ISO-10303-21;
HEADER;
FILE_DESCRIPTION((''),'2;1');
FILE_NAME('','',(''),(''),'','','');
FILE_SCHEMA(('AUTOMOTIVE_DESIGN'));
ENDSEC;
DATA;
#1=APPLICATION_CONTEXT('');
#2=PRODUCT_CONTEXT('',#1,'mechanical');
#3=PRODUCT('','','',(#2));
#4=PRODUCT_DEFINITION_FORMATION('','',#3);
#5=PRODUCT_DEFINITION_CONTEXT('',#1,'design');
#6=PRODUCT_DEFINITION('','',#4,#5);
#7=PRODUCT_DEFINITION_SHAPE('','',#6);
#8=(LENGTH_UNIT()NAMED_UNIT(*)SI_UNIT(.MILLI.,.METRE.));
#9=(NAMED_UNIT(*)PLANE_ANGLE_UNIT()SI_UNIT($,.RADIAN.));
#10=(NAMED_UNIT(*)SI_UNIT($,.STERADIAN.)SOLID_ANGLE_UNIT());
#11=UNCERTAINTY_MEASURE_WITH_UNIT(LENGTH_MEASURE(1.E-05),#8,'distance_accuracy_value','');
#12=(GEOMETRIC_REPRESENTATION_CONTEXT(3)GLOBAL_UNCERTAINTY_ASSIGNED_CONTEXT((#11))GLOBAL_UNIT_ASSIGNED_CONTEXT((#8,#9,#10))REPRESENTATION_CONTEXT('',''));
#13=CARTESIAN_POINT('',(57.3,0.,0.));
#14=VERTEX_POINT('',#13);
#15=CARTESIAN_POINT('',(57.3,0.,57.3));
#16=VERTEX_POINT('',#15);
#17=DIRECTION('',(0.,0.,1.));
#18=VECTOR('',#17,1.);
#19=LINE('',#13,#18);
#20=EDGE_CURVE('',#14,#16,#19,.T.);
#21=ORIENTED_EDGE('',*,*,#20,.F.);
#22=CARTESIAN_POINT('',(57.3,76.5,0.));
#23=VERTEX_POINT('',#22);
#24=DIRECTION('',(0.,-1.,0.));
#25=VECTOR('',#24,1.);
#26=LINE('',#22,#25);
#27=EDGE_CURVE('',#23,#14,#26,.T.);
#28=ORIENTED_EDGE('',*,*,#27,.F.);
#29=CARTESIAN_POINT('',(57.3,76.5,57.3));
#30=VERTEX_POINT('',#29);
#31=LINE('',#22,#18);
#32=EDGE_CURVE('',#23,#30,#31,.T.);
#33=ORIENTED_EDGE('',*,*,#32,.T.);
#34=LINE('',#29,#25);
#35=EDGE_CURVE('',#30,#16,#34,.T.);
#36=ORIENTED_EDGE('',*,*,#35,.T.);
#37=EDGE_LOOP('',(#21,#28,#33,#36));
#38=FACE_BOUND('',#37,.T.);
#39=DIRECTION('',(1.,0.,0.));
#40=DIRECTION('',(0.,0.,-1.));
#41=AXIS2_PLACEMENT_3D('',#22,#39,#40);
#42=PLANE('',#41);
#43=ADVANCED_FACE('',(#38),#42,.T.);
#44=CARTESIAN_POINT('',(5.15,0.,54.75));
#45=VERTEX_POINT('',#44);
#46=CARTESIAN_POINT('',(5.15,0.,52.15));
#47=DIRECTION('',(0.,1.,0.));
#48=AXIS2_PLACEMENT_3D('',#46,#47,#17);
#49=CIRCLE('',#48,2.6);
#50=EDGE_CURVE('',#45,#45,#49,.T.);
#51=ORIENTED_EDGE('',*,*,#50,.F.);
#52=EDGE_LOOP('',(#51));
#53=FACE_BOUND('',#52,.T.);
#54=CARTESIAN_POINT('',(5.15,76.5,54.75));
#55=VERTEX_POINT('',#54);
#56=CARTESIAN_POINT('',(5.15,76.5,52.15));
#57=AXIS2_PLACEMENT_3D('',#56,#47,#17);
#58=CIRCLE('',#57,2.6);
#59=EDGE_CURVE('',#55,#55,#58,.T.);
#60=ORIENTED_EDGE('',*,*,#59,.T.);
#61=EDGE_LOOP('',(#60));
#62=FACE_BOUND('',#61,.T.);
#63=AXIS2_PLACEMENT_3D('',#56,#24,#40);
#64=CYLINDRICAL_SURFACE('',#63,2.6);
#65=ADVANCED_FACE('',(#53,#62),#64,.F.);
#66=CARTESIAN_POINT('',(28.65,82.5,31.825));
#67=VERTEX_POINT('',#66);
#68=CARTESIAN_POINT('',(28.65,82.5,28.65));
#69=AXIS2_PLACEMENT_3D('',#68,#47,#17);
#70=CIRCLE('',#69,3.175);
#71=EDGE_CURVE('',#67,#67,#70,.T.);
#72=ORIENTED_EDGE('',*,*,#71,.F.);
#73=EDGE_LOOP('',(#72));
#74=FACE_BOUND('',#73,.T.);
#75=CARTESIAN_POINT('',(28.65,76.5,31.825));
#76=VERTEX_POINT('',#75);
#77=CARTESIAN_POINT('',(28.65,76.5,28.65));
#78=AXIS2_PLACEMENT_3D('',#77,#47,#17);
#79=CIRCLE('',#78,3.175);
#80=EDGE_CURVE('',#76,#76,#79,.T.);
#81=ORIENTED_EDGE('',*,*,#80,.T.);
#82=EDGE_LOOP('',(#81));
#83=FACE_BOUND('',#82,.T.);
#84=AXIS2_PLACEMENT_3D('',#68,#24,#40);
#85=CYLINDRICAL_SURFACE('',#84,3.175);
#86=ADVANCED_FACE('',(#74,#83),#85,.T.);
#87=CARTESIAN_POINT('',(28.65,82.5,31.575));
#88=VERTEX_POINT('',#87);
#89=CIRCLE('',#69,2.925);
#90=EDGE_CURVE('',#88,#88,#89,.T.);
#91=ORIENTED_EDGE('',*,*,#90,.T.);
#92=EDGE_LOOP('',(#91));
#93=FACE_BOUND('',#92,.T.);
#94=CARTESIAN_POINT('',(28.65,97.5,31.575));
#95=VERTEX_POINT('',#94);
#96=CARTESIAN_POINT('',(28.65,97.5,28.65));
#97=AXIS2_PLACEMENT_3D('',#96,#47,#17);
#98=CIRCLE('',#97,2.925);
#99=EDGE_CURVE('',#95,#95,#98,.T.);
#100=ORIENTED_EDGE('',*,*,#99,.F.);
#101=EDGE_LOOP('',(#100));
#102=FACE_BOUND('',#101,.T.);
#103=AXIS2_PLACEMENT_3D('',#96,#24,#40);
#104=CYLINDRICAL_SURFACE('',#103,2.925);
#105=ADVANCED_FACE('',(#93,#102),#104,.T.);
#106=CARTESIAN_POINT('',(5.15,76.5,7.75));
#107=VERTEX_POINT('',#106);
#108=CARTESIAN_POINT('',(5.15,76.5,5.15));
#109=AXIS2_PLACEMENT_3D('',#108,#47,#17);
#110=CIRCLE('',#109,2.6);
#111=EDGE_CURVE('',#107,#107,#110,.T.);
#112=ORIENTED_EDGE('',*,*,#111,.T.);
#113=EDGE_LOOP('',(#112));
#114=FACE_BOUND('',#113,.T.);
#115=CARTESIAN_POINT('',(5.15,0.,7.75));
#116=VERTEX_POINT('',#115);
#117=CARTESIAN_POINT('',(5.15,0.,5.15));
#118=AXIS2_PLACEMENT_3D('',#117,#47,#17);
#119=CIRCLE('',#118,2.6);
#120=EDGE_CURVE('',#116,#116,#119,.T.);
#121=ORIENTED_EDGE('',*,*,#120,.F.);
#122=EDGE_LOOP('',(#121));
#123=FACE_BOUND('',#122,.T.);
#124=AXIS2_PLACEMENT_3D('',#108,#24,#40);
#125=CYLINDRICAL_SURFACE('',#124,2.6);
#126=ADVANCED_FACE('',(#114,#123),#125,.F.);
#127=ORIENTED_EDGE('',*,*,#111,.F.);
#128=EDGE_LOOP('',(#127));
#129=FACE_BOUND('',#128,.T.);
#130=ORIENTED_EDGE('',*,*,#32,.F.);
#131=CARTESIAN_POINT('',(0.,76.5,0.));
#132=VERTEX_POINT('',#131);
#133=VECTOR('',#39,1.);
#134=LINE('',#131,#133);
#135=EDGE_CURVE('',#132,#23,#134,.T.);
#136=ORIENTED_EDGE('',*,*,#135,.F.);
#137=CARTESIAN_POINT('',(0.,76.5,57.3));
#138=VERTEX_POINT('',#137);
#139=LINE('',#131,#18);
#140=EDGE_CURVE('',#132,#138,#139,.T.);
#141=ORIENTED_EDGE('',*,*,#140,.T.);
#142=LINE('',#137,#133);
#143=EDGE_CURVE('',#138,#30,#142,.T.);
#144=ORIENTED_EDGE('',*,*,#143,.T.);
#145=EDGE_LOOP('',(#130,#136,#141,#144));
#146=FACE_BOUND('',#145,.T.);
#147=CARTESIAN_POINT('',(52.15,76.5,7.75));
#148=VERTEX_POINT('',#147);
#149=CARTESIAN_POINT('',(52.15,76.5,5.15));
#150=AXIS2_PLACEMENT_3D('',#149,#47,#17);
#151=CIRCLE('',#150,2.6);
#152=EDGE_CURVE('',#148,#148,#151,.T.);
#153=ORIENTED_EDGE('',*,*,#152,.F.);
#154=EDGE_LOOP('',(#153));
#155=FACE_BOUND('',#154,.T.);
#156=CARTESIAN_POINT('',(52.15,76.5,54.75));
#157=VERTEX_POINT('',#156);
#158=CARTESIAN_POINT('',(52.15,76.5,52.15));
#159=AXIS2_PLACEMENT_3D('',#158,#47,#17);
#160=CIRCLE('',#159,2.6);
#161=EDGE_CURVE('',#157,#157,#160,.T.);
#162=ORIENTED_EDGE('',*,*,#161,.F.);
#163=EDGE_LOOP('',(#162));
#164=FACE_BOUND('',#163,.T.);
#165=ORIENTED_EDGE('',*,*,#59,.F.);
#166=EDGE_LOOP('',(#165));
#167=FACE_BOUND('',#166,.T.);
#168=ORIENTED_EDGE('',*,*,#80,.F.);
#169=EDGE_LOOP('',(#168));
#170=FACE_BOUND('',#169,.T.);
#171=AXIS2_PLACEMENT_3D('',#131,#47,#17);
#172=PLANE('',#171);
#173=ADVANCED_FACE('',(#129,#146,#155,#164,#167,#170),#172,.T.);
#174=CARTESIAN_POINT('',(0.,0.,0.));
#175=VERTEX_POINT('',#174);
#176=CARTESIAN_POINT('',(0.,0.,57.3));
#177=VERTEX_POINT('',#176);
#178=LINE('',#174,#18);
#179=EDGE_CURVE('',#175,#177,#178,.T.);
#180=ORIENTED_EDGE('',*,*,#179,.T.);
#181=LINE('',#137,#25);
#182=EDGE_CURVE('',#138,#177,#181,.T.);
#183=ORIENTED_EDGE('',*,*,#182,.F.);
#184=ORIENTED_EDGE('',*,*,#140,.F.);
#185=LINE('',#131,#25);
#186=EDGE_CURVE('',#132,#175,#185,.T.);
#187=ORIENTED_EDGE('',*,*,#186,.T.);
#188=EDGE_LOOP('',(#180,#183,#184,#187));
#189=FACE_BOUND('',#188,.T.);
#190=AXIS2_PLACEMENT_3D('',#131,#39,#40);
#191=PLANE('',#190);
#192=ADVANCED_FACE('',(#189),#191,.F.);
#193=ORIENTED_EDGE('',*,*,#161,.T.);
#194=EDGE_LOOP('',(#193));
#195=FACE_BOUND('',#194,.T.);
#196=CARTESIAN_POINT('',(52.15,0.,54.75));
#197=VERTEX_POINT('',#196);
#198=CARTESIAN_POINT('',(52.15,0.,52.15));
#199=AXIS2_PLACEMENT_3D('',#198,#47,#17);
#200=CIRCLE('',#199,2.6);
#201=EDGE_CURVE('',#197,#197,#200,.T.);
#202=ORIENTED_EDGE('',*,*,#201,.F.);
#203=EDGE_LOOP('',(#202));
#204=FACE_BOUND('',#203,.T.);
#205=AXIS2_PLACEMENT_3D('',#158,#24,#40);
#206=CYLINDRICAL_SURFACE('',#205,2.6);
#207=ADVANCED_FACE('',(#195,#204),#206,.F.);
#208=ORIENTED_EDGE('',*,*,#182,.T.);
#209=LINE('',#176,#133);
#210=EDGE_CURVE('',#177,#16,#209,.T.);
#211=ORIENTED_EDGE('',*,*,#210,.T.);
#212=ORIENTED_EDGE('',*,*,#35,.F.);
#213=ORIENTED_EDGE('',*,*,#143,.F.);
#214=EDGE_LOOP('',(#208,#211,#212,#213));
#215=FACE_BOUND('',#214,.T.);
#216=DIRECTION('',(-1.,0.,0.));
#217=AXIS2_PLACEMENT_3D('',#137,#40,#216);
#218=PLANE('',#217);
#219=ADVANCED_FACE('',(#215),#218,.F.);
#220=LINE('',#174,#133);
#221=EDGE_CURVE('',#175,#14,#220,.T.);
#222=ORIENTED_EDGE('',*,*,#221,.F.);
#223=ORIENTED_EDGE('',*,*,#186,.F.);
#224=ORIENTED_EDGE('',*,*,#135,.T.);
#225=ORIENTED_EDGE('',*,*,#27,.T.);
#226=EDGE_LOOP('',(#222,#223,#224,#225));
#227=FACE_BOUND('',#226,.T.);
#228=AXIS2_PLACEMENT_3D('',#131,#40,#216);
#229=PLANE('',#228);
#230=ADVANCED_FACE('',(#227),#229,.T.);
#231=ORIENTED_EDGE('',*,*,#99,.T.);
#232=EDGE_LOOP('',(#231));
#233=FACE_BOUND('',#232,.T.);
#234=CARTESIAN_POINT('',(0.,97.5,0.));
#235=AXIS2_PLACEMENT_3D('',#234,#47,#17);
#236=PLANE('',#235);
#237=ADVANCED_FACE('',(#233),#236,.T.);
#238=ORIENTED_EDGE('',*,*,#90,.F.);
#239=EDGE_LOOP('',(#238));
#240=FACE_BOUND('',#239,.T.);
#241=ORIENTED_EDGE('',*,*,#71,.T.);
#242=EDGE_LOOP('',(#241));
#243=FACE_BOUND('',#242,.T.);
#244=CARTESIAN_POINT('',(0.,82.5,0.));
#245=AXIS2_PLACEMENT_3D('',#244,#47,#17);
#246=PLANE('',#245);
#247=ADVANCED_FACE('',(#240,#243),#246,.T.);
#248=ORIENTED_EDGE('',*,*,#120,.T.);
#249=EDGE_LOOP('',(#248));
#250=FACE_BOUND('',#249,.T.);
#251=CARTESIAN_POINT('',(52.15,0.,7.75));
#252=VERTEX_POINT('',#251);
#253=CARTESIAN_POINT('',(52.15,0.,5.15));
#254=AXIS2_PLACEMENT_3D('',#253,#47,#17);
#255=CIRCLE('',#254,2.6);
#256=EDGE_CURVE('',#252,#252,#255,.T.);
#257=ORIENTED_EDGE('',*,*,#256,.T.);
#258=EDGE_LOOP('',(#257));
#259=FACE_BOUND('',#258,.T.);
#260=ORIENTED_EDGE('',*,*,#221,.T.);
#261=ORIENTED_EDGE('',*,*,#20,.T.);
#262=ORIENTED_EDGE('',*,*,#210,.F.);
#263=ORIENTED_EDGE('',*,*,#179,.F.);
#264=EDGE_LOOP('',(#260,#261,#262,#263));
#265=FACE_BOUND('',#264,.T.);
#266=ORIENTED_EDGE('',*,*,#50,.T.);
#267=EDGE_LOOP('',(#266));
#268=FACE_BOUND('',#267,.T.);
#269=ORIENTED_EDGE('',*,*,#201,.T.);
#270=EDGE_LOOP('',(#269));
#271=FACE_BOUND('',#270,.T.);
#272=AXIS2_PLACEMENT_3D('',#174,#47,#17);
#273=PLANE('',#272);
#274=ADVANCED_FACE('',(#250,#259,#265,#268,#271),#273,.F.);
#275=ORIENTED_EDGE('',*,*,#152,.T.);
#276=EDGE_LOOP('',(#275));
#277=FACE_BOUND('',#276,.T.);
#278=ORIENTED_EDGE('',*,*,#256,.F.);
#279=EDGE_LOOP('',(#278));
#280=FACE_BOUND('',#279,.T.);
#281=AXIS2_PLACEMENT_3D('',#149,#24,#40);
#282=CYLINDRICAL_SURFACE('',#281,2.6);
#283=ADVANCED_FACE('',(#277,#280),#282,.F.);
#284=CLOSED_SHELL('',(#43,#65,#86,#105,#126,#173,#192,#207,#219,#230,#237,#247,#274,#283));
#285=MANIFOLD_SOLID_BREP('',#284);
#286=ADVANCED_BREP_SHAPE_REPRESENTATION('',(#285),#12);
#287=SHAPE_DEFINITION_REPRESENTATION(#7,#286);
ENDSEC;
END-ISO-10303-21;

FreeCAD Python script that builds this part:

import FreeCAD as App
import Part
import Sketcher


def add_polygon(sketch, points):
    """Adds a closed chain of lines whose ends are joined by coincident constraints."""
    first, n = sketch.GeometryCount, len(points)
    for a, b in zip(points, points[1:] + points[:1]):
        sketch.addGeometry(Part.LineSegment(App.Vector(*a, 0), App.Vector(*b, 0)), False)
    for i in range(n):
        sketch.addConstraint(Sketcher.Constraint("Coincident", first + i, 2, first + (i + 1) % n, 1))

doc = App.newDocument("Part")
body = doc.addObject("PartDesign::Body", "Body")

sketch1 = doc.addObject("Sketcher::SketchObject", "Sketch")
body.addObject(sketch1)
sketch1.AttachmentSupport = (doc.XZ_Plane, [""])
sketch1.MapMode = "FlatFace"
add_polygon(sketch1, [(0, 0), (0, 57.3), (57.3, 57.3), (57.3, 0)])
sketch1.addGeometry(Part.Circle(App.Vector(5.2, 52.1, 0), App.Vector(0, 0, 1), 2.6), False)
sketch1.addGeometry(Part.Circle(App.Vector(52.1, 52.1, 0), App.Vector(0, 0, 1), 2.6), False)
sketch1.addGeometry(Part.Circle(App.Vector(5.2, 5.2, 0), App.Vector(0, 0, 1), 2.6), False)
sketch1.addGeometry(Part.Circle(App.Vector(28.6, 28.6, 0), App.Vector(0, 0, 1), 3.2), False)
sketch1.addGeometry(Part.Circle(App.Vector(52.1, 5.2, 0), App.Vector(0, 0, 1), 2.6), False)
sketch1.addConstraint([
    Sketcher.Constraint("Vertical", 0),
    Sketcher.Constraint("Horizontal", 1),
    Sketcher.Constraint("Vertical", 2),
    Sketcher.Constraint("Horizontal", 3),
    Sketcher.Constraint("Coincident", 3, 2, -1, 1),
    Sketcher.Constraint("Equal", 4, 5),
    Sketcher.Constraint("Equal", 5, 6),
    Sketcher.Constraint("Equal", 6, 8),
    Sketcher.Constraint("Horizontal", 4, 3, 5, 3),
    Sketcher.Constraint("Horizontal", 6, 3, 8, 3),
    Sketcher.Constraint("Vertical", 4, 3, 6, 3),
    Sketcher.Constraint("Vertical", 5, 3, 8, 3),
    Sketcher.Constraint("Equal", 3, 0),
    Sketcher.Constraint("Diameter", 4, 5.2),
    Sketcher.Constraint("Diameter", 7, 6.35),
    Sketcher.Constraint("DistanceX", 1, 1, 1, 2, 57.3),
    Sketcher.Constraint("DistanceX", 4, 3, 5, 3, 47.0),
    Sketcher.Constraint("DistanceY", 6, 3, 4, 3, 47.0),
    Sketcher.Constraint("DistanceX", 4, 3, 7, 3, 23.5),
    Sketcher.Constraint("DistanceY", 7, 3, 4, 3, 23.5),
    Sketcher.Constraint("DistanceX", -1, 1, 4, 3, 5.15),
    Sketcher.Constraint("DistanceY", -1, 1, 4, 3, 52.15),
])
pad1 = doc.addObject("PartDesign::Pad", "Pad")
body.addObject(pad1)
pad1.Profile = sketch1
pad1.Length = 76.5
pad1.Reversed = True

sketch2 = doc.addObject("Sketcher::SketchObject", "Sketch001")
body.addObject(sketch2)
sketch2.AttachmentSupport = (doc.XZ_Plane, [""])
sketch2.MapMode = "FlatFace"
sketch2.addGeometry([
    Part.Circle(App.Vector(28.6, 28.6, 0), App.Vector(0, 0, 1), 3.2),
    Part.Circle(App.Vector(28.6, 28.6, 0), App.Vector(0, 0, 1), 2.9),
], False)
sketch2.addConstraint([
    Sketcher.Constraint("Coincident", 1, 3, 0, 3),
    Sketcher.Constraint("Diameter", 0, 6.35),
    Sketcher.Constraint("Diameter", 1, 5.85),
    Sketcher.Constraint("DistanceX", -1, 1, 0, 3, 28.65),
    Sketcher.Constraint("DistanceY", -1, 1, 0, 3, 28.65),
])
pad2 = doc.addObject("PartDesign::Pad", "Pad001")
body.addObject(pad2)
pad2.Profile = sketch2
pad2.Length = 82.5
pad2.Reversed = True

sketch3 = doc.addObject("Sketcher::SketchObject", "Sketch002")
body.addObject(sketch3)
sketch3.AttachmentSupport = (doc.XZ_Plane, [""])
sketch3.MapMode = "FlatFace"
sketch3.addGeometry(Part.Circle(App.Vector(28.6, 28.6, 0), App.Vector(0, 0, 1), 2.9), False)
sketch3.addConstraint([
    Sketcher.Constraint("Diameter", 0, 5.85),
    Sketcher.Constraint("DistanceX", -1, 1, 0, 3, 28.65),
    Sketcher.Constraint("DistanceY", -1, 1, 0, 3, 28.65),
])
pad3 = doc.addObject("PartDesign::Pad", "Pad002")
body.addObject(pad3)
pad3.Profile = sketch3
pad3.Length = 97.5
pad3.Reversed = True

doc.recompute()
